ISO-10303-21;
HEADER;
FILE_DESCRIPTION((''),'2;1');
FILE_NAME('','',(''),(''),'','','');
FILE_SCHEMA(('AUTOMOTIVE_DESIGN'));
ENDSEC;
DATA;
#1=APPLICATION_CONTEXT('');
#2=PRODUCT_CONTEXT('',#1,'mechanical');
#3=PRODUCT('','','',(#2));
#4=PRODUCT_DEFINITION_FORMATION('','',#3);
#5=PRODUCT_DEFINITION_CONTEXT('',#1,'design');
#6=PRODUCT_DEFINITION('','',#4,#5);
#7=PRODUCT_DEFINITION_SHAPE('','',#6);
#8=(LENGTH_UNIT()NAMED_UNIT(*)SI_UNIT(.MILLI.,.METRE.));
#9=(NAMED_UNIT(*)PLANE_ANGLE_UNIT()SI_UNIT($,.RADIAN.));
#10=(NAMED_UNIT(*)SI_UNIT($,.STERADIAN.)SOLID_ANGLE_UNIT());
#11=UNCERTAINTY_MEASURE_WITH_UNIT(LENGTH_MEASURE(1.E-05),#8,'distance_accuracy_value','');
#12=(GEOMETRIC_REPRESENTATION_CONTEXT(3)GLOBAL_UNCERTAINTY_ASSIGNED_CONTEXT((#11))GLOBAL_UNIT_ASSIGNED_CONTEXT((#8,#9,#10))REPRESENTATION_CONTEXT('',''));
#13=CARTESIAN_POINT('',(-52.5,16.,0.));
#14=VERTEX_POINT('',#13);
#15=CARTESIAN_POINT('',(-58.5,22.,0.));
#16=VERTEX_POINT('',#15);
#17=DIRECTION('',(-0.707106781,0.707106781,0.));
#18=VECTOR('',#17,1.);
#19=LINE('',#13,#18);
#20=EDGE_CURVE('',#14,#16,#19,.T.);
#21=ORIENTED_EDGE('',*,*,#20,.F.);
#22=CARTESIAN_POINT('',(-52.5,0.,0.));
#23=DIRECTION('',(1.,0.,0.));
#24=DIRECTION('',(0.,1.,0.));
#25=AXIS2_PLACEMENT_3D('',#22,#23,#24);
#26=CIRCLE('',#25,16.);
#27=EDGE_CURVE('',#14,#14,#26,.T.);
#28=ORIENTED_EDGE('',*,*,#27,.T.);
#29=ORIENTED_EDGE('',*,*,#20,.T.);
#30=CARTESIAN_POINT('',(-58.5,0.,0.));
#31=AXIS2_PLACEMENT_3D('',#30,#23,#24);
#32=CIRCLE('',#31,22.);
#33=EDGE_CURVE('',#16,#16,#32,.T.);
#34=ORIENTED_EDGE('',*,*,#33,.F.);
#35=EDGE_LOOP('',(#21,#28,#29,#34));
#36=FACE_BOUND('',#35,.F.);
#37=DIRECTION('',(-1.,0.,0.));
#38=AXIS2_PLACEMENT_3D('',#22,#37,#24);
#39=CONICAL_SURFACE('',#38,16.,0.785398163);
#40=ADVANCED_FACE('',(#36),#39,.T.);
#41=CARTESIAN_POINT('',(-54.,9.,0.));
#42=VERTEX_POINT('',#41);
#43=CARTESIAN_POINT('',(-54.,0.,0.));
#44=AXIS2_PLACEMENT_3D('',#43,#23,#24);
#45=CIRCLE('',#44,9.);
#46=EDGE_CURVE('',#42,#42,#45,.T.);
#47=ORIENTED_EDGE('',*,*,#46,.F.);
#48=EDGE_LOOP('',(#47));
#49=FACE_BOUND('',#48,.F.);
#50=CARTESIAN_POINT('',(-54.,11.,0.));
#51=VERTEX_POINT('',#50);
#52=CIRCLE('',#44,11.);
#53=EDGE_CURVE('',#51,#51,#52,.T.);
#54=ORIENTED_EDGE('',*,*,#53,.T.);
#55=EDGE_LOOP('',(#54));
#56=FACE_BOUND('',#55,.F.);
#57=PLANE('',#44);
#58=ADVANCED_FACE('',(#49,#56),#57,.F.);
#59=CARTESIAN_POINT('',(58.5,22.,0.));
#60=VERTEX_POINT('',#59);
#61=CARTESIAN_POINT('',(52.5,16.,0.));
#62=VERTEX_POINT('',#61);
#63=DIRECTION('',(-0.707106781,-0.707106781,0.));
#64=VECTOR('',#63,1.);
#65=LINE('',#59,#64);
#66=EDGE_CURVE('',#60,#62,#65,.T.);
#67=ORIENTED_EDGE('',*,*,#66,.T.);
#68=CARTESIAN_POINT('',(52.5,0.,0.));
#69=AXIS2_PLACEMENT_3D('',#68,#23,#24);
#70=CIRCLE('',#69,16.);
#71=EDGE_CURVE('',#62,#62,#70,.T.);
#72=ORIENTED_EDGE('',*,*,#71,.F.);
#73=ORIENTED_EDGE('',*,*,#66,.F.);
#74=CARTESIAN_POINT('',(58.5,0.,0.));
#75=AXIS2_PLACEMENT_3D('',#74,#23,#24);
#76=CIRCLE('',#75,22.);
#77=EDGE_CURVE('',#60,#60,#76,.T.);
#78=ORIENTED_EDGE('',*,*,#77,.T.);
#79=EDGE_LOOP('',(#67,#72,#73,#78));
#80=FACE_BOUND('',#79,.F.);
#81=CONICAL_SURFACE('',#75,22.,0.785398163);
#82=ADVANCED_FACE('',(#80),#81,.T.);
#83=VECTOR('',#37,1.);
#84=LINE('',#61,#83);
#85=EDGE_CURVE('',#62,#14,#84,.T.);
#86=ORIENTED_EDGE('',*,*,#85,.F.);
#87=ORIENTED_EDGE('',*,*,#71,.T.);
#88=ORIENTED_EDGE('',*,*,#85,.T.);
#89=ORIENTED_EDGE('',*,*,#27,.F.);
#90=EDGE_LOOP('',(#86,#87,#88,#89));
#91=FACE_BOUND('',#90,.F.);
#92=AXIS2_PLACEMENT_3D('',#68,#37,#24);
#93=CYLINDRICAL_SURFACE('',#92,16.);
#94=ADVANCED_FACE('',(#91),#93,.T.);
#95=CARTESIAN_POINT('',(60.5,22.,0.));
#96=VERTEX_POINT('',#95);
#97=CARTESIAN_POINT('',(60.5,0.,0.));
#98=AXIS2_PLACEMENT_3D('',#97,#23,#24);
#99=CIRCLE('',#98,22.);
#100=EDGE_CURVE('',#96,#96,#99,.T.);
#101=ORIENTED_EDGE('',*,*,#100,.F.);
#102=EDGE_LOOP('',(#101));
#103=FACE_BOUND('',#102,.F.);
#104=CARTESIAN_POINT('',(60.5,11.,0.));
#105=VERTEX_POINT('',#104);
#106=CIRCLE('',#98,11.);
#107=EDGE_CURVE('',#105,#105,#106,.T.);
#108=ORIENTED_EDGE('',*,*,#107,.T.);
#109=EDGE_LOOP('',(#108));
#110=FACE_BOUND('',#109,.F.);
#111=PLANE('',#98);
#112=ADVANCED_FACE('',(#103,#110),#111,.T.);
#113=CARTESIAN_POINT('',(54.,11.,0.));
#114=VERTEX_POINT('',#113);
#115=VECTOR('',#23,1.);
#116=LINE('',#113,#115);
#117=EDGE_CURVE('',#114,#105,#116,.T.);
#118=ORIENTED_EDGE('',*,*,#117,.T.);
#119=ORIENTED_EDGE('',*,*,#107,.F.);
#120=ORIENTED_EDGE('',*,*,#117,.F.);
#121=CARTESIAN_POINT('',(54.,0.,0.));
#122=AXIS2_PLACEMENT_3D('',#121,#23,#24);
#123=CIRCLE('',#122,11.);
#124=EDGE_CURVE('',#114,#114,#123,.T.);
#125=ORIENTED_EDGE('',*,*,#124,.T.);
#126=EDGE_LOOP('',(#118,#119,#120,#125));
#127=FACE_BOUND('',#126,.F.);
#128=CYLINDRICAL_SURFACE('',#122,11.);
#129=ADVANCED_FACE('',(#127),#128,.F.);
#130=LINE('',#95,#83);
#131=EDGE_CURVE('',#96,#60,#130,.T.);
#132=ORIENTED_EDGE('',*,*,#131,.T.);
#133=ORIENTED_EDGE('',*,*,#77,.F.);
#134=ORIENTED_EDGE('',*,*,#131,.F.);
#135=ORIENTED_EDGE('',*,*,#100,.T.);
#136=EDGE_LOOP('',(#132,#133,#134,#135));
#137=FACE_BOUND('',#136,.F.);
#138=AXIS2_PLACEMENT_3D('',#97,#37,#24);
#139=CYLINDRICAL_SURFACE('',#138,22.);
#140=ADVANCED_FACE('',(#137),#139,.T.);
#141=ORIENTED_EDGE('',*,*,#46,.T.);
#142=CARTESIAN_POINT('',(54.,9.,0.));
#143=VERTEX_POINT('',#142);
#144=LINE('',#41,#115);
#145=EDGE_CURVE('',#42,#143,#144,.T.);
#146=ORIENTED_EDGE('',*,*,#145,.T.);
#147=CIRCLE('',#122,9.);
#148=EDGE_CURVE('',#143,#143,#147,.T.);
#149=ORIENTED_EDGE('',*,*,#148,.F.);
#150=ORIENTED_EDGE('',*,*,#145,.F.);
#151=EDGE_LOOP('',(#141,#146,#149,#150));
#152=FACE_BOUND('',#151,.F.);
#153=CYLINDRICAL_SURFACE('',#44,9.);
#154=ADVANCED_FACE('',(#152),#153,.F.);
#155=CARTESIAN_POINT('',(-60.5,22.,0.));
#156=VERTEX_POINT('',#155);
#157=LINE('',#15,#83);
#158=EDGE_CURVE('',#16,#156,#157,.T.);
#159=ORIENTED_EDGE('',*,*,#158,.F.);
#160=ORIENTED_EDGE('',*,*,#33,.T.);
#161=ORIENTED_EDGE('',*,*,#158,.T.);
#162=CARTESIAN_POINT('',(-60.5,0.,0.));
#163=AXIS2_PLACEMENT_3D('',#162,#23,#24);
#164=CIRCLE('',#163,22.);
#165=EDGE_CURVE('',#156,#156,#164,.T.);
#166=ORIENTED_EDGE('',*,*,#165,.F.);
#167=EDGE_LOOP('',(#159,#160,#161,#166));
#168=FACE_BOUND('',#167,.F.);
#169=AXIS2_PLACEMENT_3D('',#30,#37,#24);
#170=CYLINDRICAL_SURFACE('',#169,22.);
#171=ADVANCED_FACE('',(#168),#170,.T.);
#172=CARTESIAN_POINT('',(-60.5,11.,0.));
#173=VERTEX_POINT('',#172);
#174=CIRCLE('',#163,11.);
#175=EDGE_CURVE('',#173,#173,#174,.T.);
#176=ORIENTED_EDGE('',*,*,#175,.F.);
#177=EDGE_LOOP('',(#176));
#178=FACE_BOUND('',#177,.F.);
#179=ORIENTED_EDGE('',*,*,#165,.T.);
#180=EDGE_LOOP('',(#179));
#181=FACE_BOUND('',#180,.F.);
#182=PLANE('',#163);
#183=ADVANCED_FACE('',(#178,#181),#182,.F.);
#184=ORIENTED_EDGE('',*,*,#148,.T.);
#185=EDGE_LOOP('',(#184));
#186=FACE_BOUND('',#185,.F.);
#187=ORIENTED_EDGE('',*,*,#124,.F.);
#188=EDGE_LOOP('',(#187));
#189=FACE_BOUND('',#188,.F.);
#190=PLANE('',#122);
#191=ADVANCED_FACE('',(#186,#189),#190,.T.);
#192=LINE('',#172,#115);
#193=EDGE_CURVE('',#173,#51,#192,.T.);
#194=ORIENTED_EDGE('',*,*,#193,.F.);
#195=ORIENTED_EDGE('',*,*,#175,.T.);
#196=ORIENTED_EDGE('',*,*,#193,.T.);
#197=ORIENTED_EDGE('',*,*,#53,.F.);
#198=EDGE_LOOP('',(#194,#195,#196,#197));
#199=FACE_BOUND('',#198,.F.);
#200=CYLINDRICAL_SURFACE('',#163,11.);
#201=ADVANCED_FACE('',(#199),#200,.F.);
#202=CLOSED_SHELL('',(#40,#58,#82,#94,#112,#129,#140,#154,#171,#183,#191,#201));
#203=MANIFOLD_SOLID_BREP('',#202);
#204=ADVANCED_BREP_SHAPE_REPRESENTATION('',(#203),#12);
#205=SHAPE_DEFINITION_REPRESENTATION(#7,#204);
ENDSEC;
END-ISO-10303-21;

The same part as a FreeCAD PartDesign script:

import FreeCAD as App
import Part
import Sketcher


def add_polygon(sketch, points):
    """Adds a closed chain of lines whose ends are joined by coincident constraints."""
    first, n = sketch.GeometryCount, len(points)
    for a, b in zip(points, points[1:] + points[:1]):
        sketch.addGeometry(Part.LineSegment(App.Vector(*a, 0), App.Vector(*b, 0)), False)
    for i in range(n):
        sketch.addConstraint(Sketcher.Constraint("Coincident", first + i, 2, first + (i + 1) % n, 1))

doc = App.newDocument("Part")
body = doc.addObject("PartDesign::Body", "Body")

# Sketch on XY plane
sketch1 = doc.addObject("Sketcher::SketchObject", "Sketch")
body.addObject(sketch1)
sketch1.AttachmentSupport = (doc.XY_Plane, [""])
sketch1.MapMode = "FlatFace"
add_polygon(sketch1, [(-60.5, 22), (-60.5, 11), (-54, 11), (-54, 9), (54, 9), (54, 11), (60.5, 11), (60.5, 22), (58.5, 22), (52.5, 16), (-52.5, 16), (-58.5, 22)])  # lines 0-11
sketch1.addConstraint(Sketcher.Constraint("Vertical", 0))
sketch1.addConstraint(Sketcher.Constraint("Horizontal", 1))
sketch1.addConstraint(Sketcher.Constraint("Vertical", 2))
sketch1.addConstraint(Sketcher.Constraint("Horizontal", 3))
sketch1.addConstraint(Sketcher.Constraint("Vertical", 4))
sketch1.addConstraint(Sketcher.Constraint("Horizontal", 5))
sketch1.addConstraint(Sketcher.Constraint("Vertical", 6))
sketch1.addConstraint(Sketcher.Constraint("Horizontal", 7))
sketch1.addConstraint(Sketcher.Constraint("Horizontal", 9))
sketch1.addConstraint(Sketcher.Constraint("Horizontal", 11))
sketch1.addConstraint(Sketcher.Constraint("Symmetric", 1, 2, 4, 2, -2))
sketch1.addConstraint(Sketcher.Constraint("Symmetric", 7, 2, 10, 2, -2))
sketch1.addConstraint(Sketcher.Constraint("Perpendicular", 8, 10))
sketch1.addConstraint(Sketcher.Constraint("Equal", 1, 5))
sketch1.addConstraint(Sketcher.Constraint("Equal", 11, 2))
sketch1.addConstraint(Sketcher.Constraint("Equal", 8, 10))
sketch1.addConstraint(Sketcher.Constraint("DistanceX", 7, 2, 7, 1, 2.0))
sketch1.addConstraint(Sketcher.Constraint("DistanceX", 9, 2, 9, 1, 105.0))
sketch1.addConstraint(Sketcher.Constraint("DistanceY", 0, 2, 0, 1, 11.0))
sketch1.addConstraint(Sketcher.Constraint("DistanceX", 1, 1, 1, 2, 6.5))
sketch1.addConstraint(Sketcher.Constraint("DistanceY", -1, 1, 0, 2, 11.0))
sketch1.addConstraint(Sketcher.Constraint("DistanceY", -1, 1, 8, 2, 16.0))
revolution = doc.addObject("PartDesign::Revolution", "Revolution")
body.addObject(revolution)
revolution.Profile = sketch1
revolution.ReferenceAxis = (sketch1, ["H_Axis"])
revolution.Angle = 360

doc.recompute()
